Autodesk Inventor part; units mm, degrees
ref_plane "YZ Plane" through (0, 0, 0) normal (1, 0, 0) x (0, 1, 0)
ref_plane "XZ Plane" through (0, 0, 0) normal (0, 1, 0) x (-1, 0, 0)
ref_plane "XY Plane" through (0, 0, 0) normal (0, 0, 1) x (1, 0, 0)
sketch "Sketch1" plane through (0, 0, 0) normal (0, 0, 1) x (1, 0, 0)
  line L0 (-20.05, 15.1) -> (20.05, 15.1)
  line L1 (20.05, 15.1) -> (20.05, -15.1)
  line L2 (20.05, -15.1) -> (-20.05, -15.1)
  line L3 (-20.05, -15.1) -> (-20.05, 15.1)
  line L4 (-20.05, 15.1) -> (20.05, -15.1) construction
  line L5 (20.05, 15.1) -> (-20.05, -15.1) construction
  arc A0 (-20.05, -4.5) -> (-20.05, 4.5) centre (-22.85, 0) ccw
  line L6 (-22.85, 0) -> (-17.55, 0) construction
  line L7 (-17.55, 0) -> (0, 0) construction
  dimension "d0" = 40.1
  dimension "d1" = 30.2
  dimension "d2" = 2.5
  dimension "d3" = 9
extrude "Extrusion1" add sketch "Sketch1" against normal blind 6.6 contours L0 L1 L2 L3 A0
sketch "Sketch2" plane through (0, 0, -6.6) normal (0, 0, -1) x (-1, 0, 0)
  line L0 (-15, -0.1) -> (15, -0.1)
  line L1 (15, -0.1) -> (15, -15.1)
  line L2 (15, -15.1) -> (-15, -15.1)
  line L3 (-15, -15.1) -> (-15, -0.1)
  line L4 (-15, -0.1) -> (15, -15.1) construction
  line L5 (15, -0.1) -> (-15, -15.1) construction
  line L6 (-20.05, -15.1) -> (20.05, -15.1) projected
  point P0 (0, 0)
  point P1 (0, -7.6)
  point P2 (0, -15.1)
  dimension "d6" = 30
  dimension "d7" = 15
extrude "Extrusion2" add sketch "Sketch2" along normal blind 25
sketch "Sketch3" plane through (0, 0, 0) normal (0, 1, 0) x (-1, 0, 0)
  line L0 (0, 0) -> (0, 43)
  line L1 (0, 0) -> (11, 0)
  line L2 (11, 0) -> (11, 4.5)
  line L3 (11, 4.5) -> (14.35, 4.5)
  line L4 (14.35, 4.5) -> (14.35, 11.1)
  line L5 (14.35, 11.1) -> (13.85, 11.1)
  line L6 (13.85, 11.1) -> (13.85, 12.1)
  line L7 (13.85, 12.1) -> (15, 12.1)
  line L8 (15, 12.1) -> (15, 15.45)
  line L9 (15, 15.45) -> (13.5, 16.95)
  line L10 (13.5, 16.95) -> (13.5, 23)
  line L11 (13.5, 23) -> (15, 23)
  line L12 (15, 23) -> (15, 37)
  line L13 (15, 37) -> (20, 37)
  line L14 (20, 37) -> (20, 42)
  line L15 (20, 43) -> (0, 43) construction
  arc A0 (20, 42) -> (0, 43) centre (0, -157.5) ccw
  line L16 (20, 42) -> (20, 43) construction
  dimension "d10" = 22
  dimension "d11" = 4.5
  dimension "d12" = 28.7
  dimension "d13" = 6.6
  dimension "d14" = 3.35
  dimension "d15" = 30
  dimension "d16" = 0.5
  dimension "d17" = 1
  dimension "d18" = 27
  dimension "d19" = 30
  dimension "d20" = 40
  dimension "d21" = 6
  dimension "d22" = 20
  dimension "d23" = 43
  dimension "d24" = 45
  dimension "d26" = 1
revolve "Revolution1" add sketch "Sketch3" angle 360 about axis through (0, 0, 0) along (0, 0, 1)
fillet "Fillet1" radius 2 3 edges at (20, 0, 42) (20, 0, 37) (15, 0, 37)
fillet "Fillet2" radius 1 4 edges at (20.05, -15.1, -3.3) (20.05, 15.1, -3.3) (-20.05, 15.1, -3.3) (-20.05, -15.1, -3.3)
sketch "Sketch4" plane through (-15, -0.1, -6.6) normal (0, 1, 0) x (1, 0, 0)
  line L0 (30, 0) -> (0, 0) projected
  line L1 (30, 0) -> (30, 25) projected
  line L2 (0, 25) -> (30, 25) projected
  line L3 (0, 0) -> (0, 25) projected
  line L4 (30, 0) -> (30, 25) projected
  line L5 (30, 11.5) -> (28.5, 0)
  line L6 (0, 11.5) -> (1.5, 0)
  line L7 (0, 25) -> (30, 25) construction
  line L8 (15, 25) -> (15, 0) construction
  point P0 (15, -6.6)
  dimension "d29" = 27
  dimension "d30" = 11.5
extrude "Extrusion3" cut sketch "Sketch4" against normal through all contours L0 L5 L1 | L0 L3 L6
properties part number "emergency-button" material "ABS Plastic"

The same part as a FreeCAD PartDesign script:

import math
import FreeCAD as App
import Part
import Sketcher
from FreeCAD import Vector
Q = App.Units.Quantity


def edges_at(feature, points):
    """Names of the edges that pass closest to the given points."""
    edges = feature.Shape.Edges
    near = lambda p: min(range(len(edges)), key=lambda i: edges[i].distToShape(Part.Vertex(*p))[0])
    return sorted({f"Edge{near(p) + 1}" for p in points})


def add_polygon(sketch, points):
    """Adds a closed chain of lines whose ends are joined by coincident constraints."""
    first, n = sketch.GeometryCount, len(points)
    for a, b in zip(points, points[1:] + points[:1]):
        sketch.addGeometry(Part.LineSegment(App.Vector(*a, 0), App.Vector(*b, 0)), False)
    for i in range(n):
        sketch.addConstraint(Sketcher.Constraint("Coincident", first + i, 2, first + (i + 1) % n, 1))

doc = App.newDocument("Part")
body = doc.addObject("PartDesign::Body", "Body")

# Sketch on XY plane
sketch1 = body.newObject("Sketcher::SketchObject", "Sketch")
sketch1.AttachmentSupport = (doc.getObject("XY_Plane"), [""])
sketch1.MapMode = "FlatFace"
sketch1.addGeometry(Part.LineSegment(Vector(20, 15, 0), Vector(-20, 15, 0)), False)
sketch1.addGeometry(Part.LineSegment(Vector(-20, 15, 0), Vector(-20, 4, 0)), False)
sketch1.addGeometry(Part.ArcOfCircle(Part.Circle(Vector(-23, 0, 0), Vector(0, 0, 1), 5), math.radians(-58), math.radians(58)), False)
sketch1.addGeometry(Part.LineSegment(Vector(-20, -4, 0), Vector(-20, -15, 0)), False)
sketch1.addGeometry(Part.LineSegment(Vector(-20, -15, 0), Vector(20, -15, 0)), False)
sketch1.addGeometry(Part.LineSegment(Vector(20, -15, 0), Vector(20, 15, 0)), False)
sketch1.addConstraint(Sketcher.Constraint("Coincident", 0, 2, 1, 1))
sketch1.addConstraint(Sketcher.Constraint("Coincident", 1, 2, 2, 2))
sketch1.addConstraint(Sketcher.Constraint("Coincident", 2, 1, 3, 1))
sketch1.addConstraint(Sketcher.Constraint("Coincident", 3, 2, 4, 1))
sketch1.addConstraint(Sketcher.Constraint("Coincident", 4, 2, 5, 1))
sketch1.addConstraint(Sketcher.Constraint("Coincident", 5, 2, 0, 1))
sketch1.addConstraint(Sketcher.Constraint("Horizontal", 0))
sketch1.addConstraint(Sketcher.Constraint("Vertical", 1))
sketch1.addConstraint(Sketcher.Constraint("Vertical", 3))
sketch1.addConstraint(Sketcher.Constraint("Horizontal", 4))
sketch1.addConstraint(Sketcher.Constraint("Vertical", 5))
sketch1.addConstraint(Sketcher.Constraint("Symmetric", 0, 2, 4, 2, -1, 1))
sketch1.addConstraint(Sketcher.Constraint("Symmetric", 1, 2, 2, 1, -1))
sketch1.addConstraint(Sketcher.Constraint("DistanceX", 0, 2, 0, 1, Q("40.1 mm")))
sketch1.addConstraint(Sketcher.Constraint("DistanceY", 5, 1, 5, 2, Q("30.2 mm")))
sketch1.addConstraint(Sketcher.Constraint("DistanceY", 2, 1, 1, 2, Q("9 mm")))
sketch1.addConstraint(Sketcher.Constraint("Radius", 2, Q("5.3 mm")))
pad1 = body.newObject("PartDesign::Pad", "Pad")
pad1.Profile = sketch1
pad1.Length = 6.6
pad1.Reversed = True

# Sketch on XY plane
sketch2 = body.newObject("Sketcher::SketchObject", "Sketch001")
sketch2.AttachmentSupport = (doc.getObject("XY_Plane"), [""])
sketch2.MapMode = "FlatFace"
sketch2.AttachmentOffset = App.Placement(Vector(0, 0, -6.6), App.Rotation())
add_polygon(sketch2, [(-15, 0), (15, 0), (15, -15), (-15, -15)])  # lines 0-3
sketch2.addConstraint(Sketcher.Constraint("Horizontal", 0))
sketch2.addConstraint(Sketcher.Constraint("Vertical", 1))
sketch2.addConstraint(Sketcher.Constraint("Horizontal", 2))
sketch2.addConstraint(Sketcher.Constraint("Vertical", 3))
sketch2.addConstraint(Sketcher.Constraint("DistanceX", 0, 1, 0, 2, Q("30 mm")))
sketch2.addConstraint(Sketcher.Constraint("DistanceY", 1, 2, 1, 1, Q("15 mm")))
sketch2.addConstraint(Sketcher.Constraint("DistanceX", -1, 1, 0, 2, Q("15 mm")))
sketch2.addConstraint(Sketcher.Constraint("DistanceY", 0, 2, -1, 1, Q("0.1 mm")))
pad2 = body.newObject("PartDesign::Pad", "Pad001")
pad2.Profile = sketch2
pad2.Length = 25
pad2.Reversed = True

# Sketch on XZ plane
sketch3 = body.newObject("Sketcher::SketchObject", "Sketch002")
sketch3.AttachmentSupport = (doc.getObject("XZ_Plane"), [""])
sketch3.MapMode = "FlatFace"
sketch3.addGeometry(Part.LineSegment(Vector(0, 43, 0), Vector(0, 0, 0)), False)
sketch3.addGeometry(Part.LineSegment(Vector(0, 0, 0), Vector(-11, 0, 0)), False)
sketch3.addGeometry(Part.LineSegment(Vector(-11, 0, 0), Vector(-11, 4.5, 0)), False)
sketch3.addGeometry(Part.LineSegment(Vector(-11, 4.5, 0), Vector(-14.3, 4.5, 0)), False)
sketch3.addGeometry(Part.LineSegment(Vector(-14.3, 4.5, 0), Vector(-14.3, 11.1, 0)), False)
sketch3.addGeometry(Part.LineSegment(Vector(-14.3, 11.1, 0), Vector(-13.8, 11.1, 0)), False)
sketch3.addGeometry(Part.LineSegment(Vector(-13.8, 11.1, 0), Vector(-13.8, 12.1, 0)), False)
sketch3.addGeometry(Part.LineSegment(Vector(-13.8, 12.1, 0), Vector(-15, 12.1, 0)), False)
sketch3.addGeometry(Part.LineSegment(Vector(-15, 12.1, 0), Vector(-15, 15.4, 0)), False)
sketch3.addGeometry(Part.LineSegment(Vector(-15, 15.4, 0), Vector(-13.5, 16.9, 0)), False)
sketch3.addGeometry(Part.LineSegment(Vector(-13.5, 16.9, 0), Vector(-13.5, 23, 0)), False)
sketch3.addGeometry(Part.LineSegment(Vector(-13.5, 23, 0), Vector(-15, 23, 0)), False)
sketch3.addGeometry(Part.LineSegment(Vector(-15, 23, 0), Vector(-15, 37, 0)), False)
sketch3.addGeometry(Part.LineSegment(Vector(-15, 37, 0), Vector(-20, 37, 0)), False)
sketch3.addGeometry(Part.LineSegment(Vector(-20, 37, 0), Vector(-20, 42, 0)), False)
sketch3.addGeometry(Part.ArcOfCircle(Part.Circle(Vector(0, -157.5, 0), Vector(0, 0, 1), 200.5), math.radians(90), math.radians(95.72)), False)
sketch3.addConstraint(Sketcher.Constraint("Coincident", 0, 2, 1, 1))
sketch3.addConstraint(Sketcher.Constraint("Coincident", 1, 2, 2, 1))
sketch3.addConstraint(Sketcher.Constraint("Coincident", 2, 2, 3, 1))
sketch3.addConstraint(Sketcher.Constraint("Coincident", 3, 2, 4, 1))
sketch3.addConstraint(Sketcher.Constraint("Coincident", 4, 2, 5, 1))
sketch3.addConstraint(Sketcher.Constraint("Coincident", 5, 2, 6, 1))
sketch3.addConstraint(Sketcher.Constraint("Coincident", 6, 2, 7, 1))
sketch3.addConstraint(Sketcher.Constraint("Coincident", 7, 2, 8, 1))
sketch3.addConstraint(Sketcher.Constraint("Coincident", 8, 2, 9, 1))
sketch3.addConstraint(Sketcher.Constraint("Coincident", 9, 2, 10, 1))
sketch3.addConstraint(Sketcher.Constraint("Coincident", 10, 2, 11, 1))
sketch3.addConstraint(Sketcher.Constraint("Coincident", 11, 2, 12, 1))
sketch3.addConstraint(Sketcher.Constraint("Coincident", 12, 2, 13, 1))
sketch3.addConstraint(Sketcher.Constraint("Coincident", 13, 2, 14, 1))
sketch3.addConstraint(Sketcher.Constraint("Coincident", 14, 2, 15, 2))
sketch3.addConstraint(Sketcher.Constraint("Coincident", 15, 1, 0, 1))
sketch3.addConstraint(Sketcher.Constraint("Vertical", 0))
sketch3.addConstraint(Sketcher.Constraint("Horizontal", 1))
sketch3.addConstraint(Sketcher.Constraint("Vertical", 2))
sketch3.addConstraint(Sketcher.Constraint("Horizontal", 3))
sketch3.addConstraint(Sketcher.Constraint("Vertical", 4))
sketch3.addConstraint(Sketcher.Constraint("Horizontal", 5))
sketch3.addConstraint(Sketcher.Constraint("Vertical", 6))
sketch3.addConstraint(Sketcher.Constraint("Horizontal", 7))
sketch3.addConstraint(Sketcher.Constraint("Vertical", 8))
sketch3.addConstraint(Sketcher.Constraint("Vertical", 10))
sketch3.addConstraint(Sketcher.Constraint("Horizontal", 11))
sketch3.addConstraint(Sketcher.Constraint("Vertical", 12))
sketch3.addConstraint(Sketcher.Constraint("Horizontal", 13))
sketch3.addConstraint(Sketcher.Constraint("Vertical", 14))
sketch3.addConstraint(Sketcher.Constraint("Coincident", 0, 2, -1, 1))
sketch3.addConstraint(Sketcher.Constraint("PointOnObject", 15, 3, -2))
sketch3.addConstraint(Sketcher.Constraint("Vertical", 8, 2, 11, 2))
sketch3.addConstraint(Sketcher.Constraint("Equal", 3, 8))
sketch3.addConstraint(Sketcher.Constraint("Equal", 13, 14))
sketch3.addConstraint(Sketcher.Constraint("DistanceY", 0, 2, 0, 1, Q("43 mm")))
sketch3.addConstraint(Sketcher.Constraint("DistanceY", 6, 1, 6, 2, Q("1 mm")))
sketch3.addConstraint(Sketcher.Constraint("Angle", 9, Q("45 deg")))
sketch3.addConstraint(Sketcher.Constraint("DistanceX", 5, 1, 5, 2, Q("0.5 mm")))
sketch3.addConstraint(Sketcher.Constraint("DistanceY", 2, 1, 2, 2, Q("4.5 mm")))
sketch3.addConstraint(Sketcher.Constraint("DistanceY", 4, 1, 4, 2, Q("6.6 mm")))
sketch3.addConstraint(Sketcher.Constraint("DistanceX", 13, 2, -1, 1, Q("20 mm")))
sketch3.addConstraint(Sketcher.Constraint("DistanceY", 12, 2, 15, 1, Q("6 mm")))
sketch3.addConstraint(Sketcher.Constraint("DistanceY", 14, 2, 15, 1, Q("1 mm")))
sketch3.addConstraint(Sketcher.Constraint("DistanceY", 10, 2, 15, 1, Q("20 mm")))
sketch3.addConstraint(Sketcher.Constraint("DistanceX", 3, 2, 3, 1, Q("3.35 mm")))
sketch3.addConstraint(Sketcher.Constraint("DistanceX", 1, 2, 1, 1, Q("11 mm")))
sketch3.addConstraint(Sketcher.Constraint("DistanceX", 11, 2, 11, 1, Q("1.5 mm")))
revolution = body.newObject("PartDesign::Revolution", "Revolution")
revolution.Profile = sketch3
revolution.ReferenceAxis = (sketch3, ["V_Axis"])
revolution.Angle = 360
doc.recompute()

fillet = body.newObject("PartDesign::Fillet", "Fillet")
fillet.Base = (revolution, edges_at(revolution, [(20, 0, 42), (20, 0, 37), (15, 0, 37)]))
fillet.Radius = 2
doc.recompute()

fillet2 = body.newObject("PartDesign::Fillet", "Fillet001")
fillet2.Base = (fillet, edges_at(fillet, [
    (20.05, -15.1, -3.3),
    (20.05, 15.1, -3.3),
    (-20.05, 15.1, -3.3),
    (-20.05, -15.1, -3.3),
]))
fillet2.Radius = 1

# Sketch on XZ plane
sketch4 = body.newObject("Sketcher::SketchObject", "Sketch003")
sketch4.AttachmentSupport = (doc.getObject("XZ_Plane"), [""])
sketch4.MapMode = "FlatFace"
sketch4.AttachmentOffset = App.Placement(Vector(0, 0, 0.1), App.Rotation())
add_polygon(sketch4, [(13.5, -6.6), (15, -6.6), (15, -18.1)])  # lines 0-2
add_polygon(sketch4, [(-15, -6.6), (-13.5, -6.6), (-15, -18.1)])  # lines 3-5
sketch4.addConstraint(Sketcher.Constraint("Horizontal", 0))
sketch4.addConstraint(Sketcher.Constraint("Vertical", 1))
sketch4.addConstraint(Sketcher.Constraint("Horizontal", 3))
sketch4.addConstraint(Sketcher.Constraint("Vertical", 5))
sketch4.addConstraint(Sketcher.Constraint("Symmetric", 2, 2, 3, 2, -2))
sketch4.addConstraint(Sketcher.Constraint("Symmetric", 1, 2, 4, 2, -2))
sketch4.addConstraint(Sketcher.Constraint("DistanceY", 1, 2, 1, 1, Q("11.5 mm")))
sketch4.addConstraint(Sketcher.Constraint("DistanceX", 3, 2, 2, 2, Q("27 mm")))
sketch4.addConstraint(Sketcher.Constraint("DistanceX", 0, 1, 0, 2, Q("1.5 mm")))
sketch4.addConstraint(Sketcher.Constraint("DistanceY", 0, 2, -1, 1, Q("6.6 mm")))
pocket1 = body.newObject("PartDesign::Pocket", "Pocket")
pocket1.Profile = sketch4
pocket1.Type = "ThroughAll"
pocket1.Reversed = True

doc.recompute()
